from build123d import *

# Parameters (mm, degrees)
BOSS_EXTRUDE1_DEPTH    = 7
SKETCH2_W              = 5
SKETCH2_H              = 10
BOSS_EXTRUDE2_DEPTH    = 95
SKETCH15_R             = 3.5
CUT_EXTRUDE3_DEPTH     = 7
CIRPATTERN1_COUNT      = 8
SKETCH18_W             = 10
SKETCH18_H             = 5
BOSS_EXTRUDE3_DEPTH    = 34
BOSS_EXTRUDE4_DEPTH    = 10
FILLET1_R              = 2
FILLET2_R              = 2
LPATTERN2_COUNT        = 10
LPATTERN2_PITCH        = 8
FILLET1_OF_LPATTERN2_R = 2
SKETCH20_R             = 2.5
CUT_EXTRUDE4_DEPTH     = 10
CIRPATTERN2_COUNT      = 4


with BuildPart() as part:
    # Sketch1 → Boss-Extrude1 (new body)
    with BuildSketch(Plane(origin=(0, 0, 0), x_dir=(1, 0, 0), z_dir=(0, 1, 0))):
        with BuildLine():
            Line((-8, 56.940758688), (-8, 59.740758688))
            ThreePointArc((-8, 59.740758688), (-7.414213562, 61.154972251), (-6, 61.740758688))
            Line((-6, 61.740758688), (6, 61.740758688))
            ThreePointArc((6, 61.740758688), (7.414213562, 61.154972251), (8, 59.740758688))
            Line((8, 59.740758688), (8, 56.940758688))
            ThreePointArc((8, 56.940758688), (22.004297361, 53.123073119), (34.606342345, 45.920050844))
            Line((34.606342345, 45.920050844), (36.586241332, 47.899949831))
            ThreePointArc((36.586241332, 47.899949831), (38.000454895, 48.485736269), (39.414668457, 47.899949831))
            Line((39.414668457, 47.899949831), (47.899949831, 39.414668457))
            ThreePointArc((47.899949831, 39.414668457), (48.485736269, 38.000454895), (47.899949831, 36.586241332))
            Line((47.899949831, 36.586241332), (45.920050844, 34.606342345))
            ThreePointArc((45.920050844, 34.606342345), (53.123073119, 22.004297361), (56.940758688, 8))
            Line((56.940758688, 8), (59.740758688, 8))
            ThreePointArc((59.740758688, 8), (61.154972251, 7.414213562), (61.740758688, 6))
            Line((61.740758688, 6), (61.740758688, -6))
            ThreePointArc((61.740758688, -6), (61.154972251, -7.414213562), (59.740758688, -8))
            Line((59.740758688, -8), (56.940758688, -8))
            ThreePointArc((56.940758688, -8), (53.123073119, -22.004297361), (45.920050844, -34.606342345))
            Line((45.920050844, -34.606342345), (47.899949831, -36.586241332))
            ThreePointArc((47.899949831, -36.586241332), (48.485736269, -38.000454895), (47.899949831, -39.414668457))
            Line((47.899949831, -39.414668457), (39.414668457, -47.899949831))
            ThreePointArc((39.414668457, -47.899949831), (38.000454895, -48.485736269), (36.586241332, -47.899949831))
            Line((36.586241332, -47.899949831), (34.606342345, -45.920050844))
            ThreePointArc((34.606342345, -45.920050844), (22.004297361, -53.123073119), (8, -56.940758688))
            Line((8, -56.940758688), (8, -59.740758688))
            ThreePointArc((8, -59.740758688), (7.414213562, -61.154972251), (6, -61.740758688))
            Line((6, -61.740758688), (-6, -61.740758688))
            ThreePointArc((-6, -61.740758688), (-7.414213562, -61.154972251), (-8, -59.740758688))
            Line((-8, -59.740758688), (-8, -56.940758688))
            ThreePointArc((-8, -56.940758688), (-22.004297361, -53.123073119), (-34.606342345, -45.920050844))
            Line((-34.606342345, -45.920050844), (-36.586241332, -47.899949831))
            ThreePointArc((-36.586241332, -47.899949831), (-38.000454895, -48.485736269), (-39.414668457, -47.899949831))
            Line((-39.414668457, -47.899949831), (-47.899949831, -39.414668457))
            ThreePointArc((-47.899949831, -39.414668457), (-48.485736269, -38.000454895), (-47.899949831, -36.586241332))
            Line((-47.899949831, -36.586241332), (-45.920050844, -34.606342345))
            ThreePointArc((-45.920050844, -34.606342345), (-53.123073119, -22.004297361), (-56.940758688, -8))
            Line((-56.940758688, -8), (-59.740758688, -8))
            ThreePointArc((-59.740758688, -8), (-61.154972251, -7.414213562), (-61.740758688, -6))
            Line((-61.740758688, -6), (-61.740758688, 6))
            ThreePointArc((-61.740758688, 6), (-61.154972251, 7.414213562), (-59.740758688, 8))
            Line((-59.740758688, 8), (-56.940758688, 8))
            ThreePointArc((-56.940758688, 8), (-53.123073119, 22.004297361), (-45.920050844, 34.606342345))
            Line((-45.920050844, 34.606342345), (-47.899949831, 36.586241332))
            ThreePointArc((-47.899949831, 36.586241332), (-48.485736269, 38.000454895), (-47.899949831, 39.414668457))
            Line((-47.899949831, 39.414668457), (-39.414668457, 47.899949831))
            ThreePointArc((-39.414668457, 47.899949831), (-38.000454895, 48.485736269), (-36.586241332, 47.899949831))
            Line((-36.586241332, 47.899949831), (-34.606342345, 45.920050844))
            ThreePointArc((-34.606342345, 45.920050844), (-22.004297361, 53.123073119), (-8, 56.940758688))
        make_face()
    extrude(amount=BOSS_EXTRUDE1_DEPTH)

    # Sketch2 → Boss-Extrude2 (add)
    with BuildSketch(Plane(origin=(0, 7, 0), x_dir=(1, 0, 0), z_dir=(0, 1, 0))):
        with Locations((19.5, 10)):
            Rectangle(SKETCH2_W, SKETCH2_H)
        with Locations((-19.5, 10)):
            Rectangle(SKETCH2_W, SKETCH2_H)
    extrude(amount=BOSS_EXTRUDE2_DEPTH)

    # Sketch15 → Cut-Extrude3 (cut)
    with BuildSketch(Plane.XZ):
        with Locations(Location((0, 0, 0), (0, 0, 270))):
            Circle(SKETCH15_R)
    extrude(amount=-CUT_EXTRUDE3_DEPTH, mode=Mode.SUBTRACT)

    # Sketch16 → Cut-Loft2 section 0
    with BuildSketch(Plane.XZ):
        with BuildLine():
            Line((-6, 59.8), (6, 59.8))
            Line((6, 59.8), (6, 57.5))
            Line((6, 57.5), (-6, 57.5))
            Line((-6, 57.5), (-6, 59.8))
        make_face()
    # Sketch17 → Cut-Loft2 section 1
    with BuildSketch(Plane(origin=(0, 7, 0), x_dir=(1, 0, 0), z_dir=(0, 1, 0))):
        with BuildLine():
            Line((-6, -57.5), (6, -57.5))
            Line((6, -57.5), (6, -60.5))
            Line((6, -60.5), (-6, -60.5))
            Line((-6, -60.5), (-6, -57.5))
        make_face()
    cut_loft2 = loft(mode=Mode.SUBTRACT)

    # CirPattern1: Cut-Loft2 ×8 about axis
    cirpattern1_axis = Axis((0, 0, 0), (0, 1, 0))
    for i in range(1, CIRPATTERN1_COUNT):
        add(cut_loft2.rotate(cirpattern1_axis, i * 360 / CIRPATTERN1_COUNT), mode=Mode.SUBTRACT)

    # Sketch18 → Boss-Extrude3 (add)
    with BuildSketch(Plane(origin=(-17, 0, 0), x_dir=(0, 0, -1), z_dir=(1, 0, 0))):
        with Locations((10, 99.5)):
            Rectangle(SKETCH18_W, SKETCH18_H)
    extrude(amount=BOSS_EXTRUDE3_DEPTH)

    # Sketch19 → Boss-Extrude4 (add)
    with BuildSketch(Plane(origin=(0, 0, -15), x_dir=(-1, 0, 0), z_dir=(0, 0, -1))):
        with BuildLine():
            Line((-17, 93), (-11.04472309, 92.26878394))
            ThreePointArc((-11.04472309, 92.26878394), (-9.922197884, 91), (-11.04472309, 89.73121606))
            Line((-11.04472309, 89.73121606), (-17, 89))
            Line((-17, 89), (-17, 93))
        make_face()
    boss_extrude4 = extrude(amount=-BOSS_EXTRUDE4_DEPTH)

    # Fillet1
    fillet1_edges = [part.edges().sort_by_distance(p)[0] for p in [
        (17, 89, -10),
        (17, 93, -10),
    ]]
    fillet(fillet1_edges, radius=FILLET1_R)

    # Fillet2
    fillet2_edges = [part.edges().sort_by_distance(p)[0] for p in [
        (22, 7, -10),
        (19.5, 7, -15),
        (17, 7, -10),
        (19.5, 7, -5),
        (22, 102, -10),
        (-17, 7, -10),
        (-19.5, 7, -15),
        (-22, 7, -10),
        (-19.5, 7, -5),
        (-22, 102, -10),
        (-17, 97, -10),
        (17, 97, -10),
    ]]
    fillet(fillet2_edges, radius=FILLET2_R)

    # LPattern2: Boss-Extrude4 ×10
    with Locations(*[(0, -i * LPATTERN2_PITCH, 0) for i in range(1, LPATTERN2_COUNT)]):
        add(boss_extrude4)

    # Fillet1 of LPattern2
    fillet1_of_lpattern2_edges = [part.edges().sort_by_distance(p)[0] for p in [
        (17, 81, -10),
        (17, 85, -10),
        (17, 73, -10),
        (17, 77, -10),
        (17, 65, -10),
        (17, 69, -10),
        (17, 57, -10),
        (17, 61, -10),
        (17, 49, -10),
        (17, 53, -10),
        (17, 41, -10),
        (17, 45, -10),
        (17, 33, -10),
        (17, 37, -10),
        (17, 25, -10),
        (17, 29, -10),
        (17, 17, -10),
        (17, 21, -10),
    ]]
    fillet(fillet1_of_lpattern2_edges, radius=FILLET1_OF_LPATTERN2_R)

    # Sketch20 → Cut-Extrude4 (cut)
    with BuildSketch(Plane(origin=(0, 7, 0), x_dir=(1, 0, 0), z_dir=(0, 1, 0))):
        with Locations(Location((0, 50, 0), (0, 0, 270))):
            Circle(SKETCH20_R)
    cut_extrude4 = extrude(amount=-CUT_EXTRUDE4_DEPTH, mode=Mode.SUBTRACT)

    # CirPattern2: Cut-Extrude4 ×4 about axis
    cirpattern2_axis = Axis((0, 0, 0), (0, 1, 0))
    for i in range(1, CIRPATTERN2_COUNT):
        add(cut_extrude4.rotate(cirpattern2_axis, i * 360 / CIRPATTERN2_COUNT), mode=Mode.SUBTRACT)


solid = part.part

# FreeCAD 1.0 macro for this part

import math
import FreeCAD as App
import Part
import Sketcher

V = App.Vector
Q = App.Units.Quantity


def edges_at(feature, points):
    """Names of the edges that pass closest to the given points."""
    edges = feature.Shape.Edges
    near = lambda p: min(range(len(edges)), key=lambda i: edges[i].distToShape(Part.Vertex(*p))[0])
    return sorted({f"Edge{near(p) + 1}" for p in points})

doc = App.newDocument("Part")
params = doc.addObject("Spreadsheet::Sheet", "Params")
for row, (alias, value) in enumerate([
    ("sketch1_radius", "2 mm"),
    ("sketch1_radius2", "57.5 mm"),
    ("sketch1_width", "12 mm"),
    ("sketch1_length", "12 mm"),
    ("sketch1_width2", "2.8 mm"),
    ("pad1_length", "7 mm"),
    ("sketch2_width", "5 mm"),
    ("sketch2_height", "10 mm"),
    ("pad2_length", "95 mm"),
    ("sketch3_diameter", "7 mm"),
    ("pocket1_length", "7 mm"),
    ("sketch4_width", "12 mm"),
    ("sketch4_height", "2.3 mm"),
    ("sketch5_width", "12 mm"),
    ("sketch5_height", "3 mm"),
    ("sketch6_width", "5 mm"),
    ("sketch6_height", "10 mm"),
    ("pad3_length", "34 mm"),
    ("sketch7_height", "4 mm"),
    ("sketch7_length", "6 mm"),
    ("pad4_length", "10 mm"),
    ("fillet_radius", "2 mm"),
    ("fillet2_radius", "2 mm"),
    ("linearpattern_pitch", "8 mm"),
    ("fillet3_radius", "2 mm"),
    ("sketch8_diameter", "5 mm"),
    ("pocket2_length", "10 mm"),
], start=1):
    params.set(f"A{row}", alias)
    params.set(f"B{row}", "=" + value)
    params.setAlias(f"B{row}", alias)

body = doc.addObject("PartDesign::Body", "Body")

sketch1 = doc.addObject("Sketcher::SketchObject", "Sketch")
body.addObject(sketch1)
sketch1.AttachmentSupport = (doc.XZ_Plane, [""])
sketch1.MapMode = "FlatFace"
sketch1.addGeometry([
    Part.LineSegment(V(-8, -59.7, 0), V(-8, -56.9, 0)),
    Part.ArcOfCircle(Part.Circle(V(0, 0, 0), V(0, 0, 1), 57.5), math.radians(-127), math.radians(-98)),
    Part.LineSegment(V(-34.6, -45.9, 0), V(-36.6, -47.9, 0)),
    Part.ArcOfCircle(Part.Circle(V(-38, -46.5, 0), V(0, 0, 1), 2), math.radians(-135), math.radians(-45)),
    Part.LineSegment(V(-39.4, -47.9, 0), V(-47.9, -39.4, 0)),
    Part.ArcOfCircle(Part.Circle(V(-46.5, -38, 0), V(0, 0, 1), 2), math.radians(135), math.radians(225)),
    Part.LineSegment(V(-47.9, -36.6, 0), V(-45.9, -34.6, 0)),
    Part.ArcOfCircle(Part.Circle(V(0, 0, 0), V(0, 0, 1), 57.5), math.radians(-172), math.radians(-143)),
    Part.LineSegment(V(-56.9, -8, 0), V(-59.7, -8, 0)),
    Part.ArcOfCircle(Part.Circle(V(-59.7, -6, 0), V(0, 0, 1), 2), math.radians(180), math.radians(270)),
    Part.LineSegment(V(-61.7, -6, 0), V(-61.7, 6, 0)),
    Part.ArcOfCircle(Part.Circle(V(-59.7, 6, 0), V(0, 0, 1), 2), math.radians(90), math.radians(180)),
    Part.LineSegment(V(-59.7, 8, 0), V(-56.9, 8, 0)),
    Part.ArcOfCircle(Part.Circle(V(0, 0, 0), V(0, 0, 1), 57.5), math.radians(143), math.radians(172)),
    Part.LineSegment(V(-45.9, 34.6, 0), V(-47.9, 36.6, 0)),
    Part.ArcOfCircle(Part.Circle(V(-46.5, 38, 0), V(0, 0, 1), 2), math.radians(135), math.radians(225)),
    Part.LineSegment(V(-47.9, 39.4, 0), V(-39.4, 47.9, 0)),
    Part.ArcOfCircle(Part.Circle(V(-38, 46.5, 0), V(0, 0, 1), 2), math.radians(45), math.radians(135)),
    Part.LineSegment(V(-36.6, 47.9, 0), V(-34.6, 45.9, 0)),
    Part.ArcOfCircle(Part.Circle(V(0, 0, 0), V(0, 0, 1), 57.5), math.radians(98), math.radians(127)),
    Part.LineSegment(V(-8, 56.9, 0), V(-8, 59.7, 0)),
    Part.ArcOfCircle(Part.Circle(V(-6, 59.7, 0), V(0, 0, 1), 2), math.radians(90), math.radians(180)),
    Part.LineSegment(V(-6, 61.7, 0), V(6, 61.7, 0)),
    Part.ArcOfCircle(Part.Circle(V(6, 59.7, 0), V(0, 0, 1), 2), math.radians(0), math.radians(90)),
    Part.LineSegment(V(8, 59.7, 0), V(8, 56.9, 0)),
    Part.ArcOfCircle(Part.Circle(V(0, 0, 0), V(0, 0, 1), 57.5), math.radians(53), math.radians(82)),
    Part.LineSegment(V(34.6, 45.9, 0), V(36.6, 47.9, 0)),
    Part.ArcOfCircle(Part.Circle(V(38, 46.5, 0), V(0, 0, 1), 2), math.radians(45), math.radians(135)),
    Part.LineSegment(V(39.4, 47.9, 0), V(47.9, 39.4, 0)),
    Part.ArcOfCircle(Part.Circle(V(46.5, 38, 0), V(0, 0, 1), 2), math.radians(-45), math.radians(45)),
    Part.LineSegment(V(47.9, 36.6, 0), V(45.9, 34.6, 0)),
    Part.ArcOfCircle(Part.Circle(V(0, 0, 0), V(0, 0, 1), 57.5), math.radians(8), math.radians(37)),
    Part.LineSegment(V(56.9, 8, 0), V(59.7, 8, 0)),
    Part.ArcOfCircle(Part.Circle(V(59.7, 6, 0), V(0, 0, 1), 2), math.radians(0), math.radians(90)),
    Part.LineSegment(V(61.7, 6, 0), V(61.7, -6, 0)),
    Part.ArcOfCircle(Part.Circle(V(59.7, -6, 0), V(0, 0, 1), 2), math.radians(-90), math.radians(0)),
    Part.LineSegment(V(59.7, -8, 0), V(56.9, -8, 0)),
    Part.ArcOfCircle(Part.Circle(V(0, 0, 0), V(0, 0, 1), 57.5), math.radians(-37), math.radians(-8)),
    Part.LineSegment(V(45.9, -34.6, 0), V(47.9, -36.6, 0)),
    Part.ArcOfCircle(Part.Circle(V(46.5, -38, 0), V(0, 0, 1), 2), math.radians(-45), math.radians(45)),
    Part.LineSegment(V(47.9, -39.4, 0), V(39.4, -47.9, 0)),
    Part.ArcOfCircle(Part.Circle(V(38, -46.5, 0), V(0, 0, 1), 2), math.radians(-135), math.radians(-45)),
    Part.LineSegment(V(36.6, -47.9, 0), V(34.6, -45.9, 0)),
    Part.ArcOfCircle(Part.Circle(V(0, 0, 0), V(0, 0, 1), 57.5), math.radians(-82), math.radians(-53)),
    Part.LineSegment(V(8, -56.9, 0), V(8, -59.7, 0)),
    Part.ArcOfCircle(Part.Circle(V(6, -59.7, 0), V(0, 0, 1), 2), math.radians(-90), math.radians(0)),
    Part.LineSegment(V(6, -61.7, 0), V(-6, -61.7, 0)),
    Part.ArcOfCircle(Part.Circle(V(-6, -59.7, 0), V(0, 0, 1), 2), math.radians(180), math.radians(270)),
], False)
sketch1.addConstraint([
    Sketcher.Constraint("Coincident", 0, 2, 1, 2),
    Sketcher.Constraint("Coincident", 1, 1, 2, 1),
    Sketcher.Constraint("Tangent", 2, 2, 3, 2),
    Sketcher.Constraint("Tangent", 3, 1, 4, 1),
    Sketcher.Constraint("Tangent", 4, 2, 5, 2),
    Sketcher.Constraint("Tangent", 5, 1, 6, 1),
    Sketcher.Constraint("Coincident", 6, 2, 7, 2),
    Sketcher.Constraint("Coincident", 7, 1, 8, 1),
    Sketcher.Constraint("Tangent", 8, 2, 9, 2),
    Sketcher.Constraint("Tangent", 9, 1, 10, 1),
    Sketcher.Constraint("Tangent", 10, 2, 11, 2),
    Sketcher.Constraint("Tangent", 11, 1, 12, 1),
    Sketcher.Constraint("Coincident", 12, 2, 13, 2),
    Sketcher.Constraint("Coincident", 13, 1, 14, 1),
    Sketcher.Constraint("Tangent", 14, 2, 15, 2),
    Sketcher.Constraint("Tangent", 15, 1, 16, 1),
    Sketcher.Constraint("Tangent", 16, 2, 17, 2),
    Sketcher.Constraint("Tangent", 17, 1, 18, 1),
    Sketcher.Constraint("Coincident", 18, 2, 19, 2),
    Sketcher.Constraint("Coincident", 19, 1, 20, 1),
    Sketcher.Constraint("Tangent", 20, 2, 21, 2),
    Sketcher.Constraint("Tangent", 21, 1, 22, 1),
    Sketcher.Constraint("Tangent", 22, 2, 23, 2),
    Sketcher.Constraint("Tangent", 23, 1, 24, 1),
    Sketcher.Constraint("Coincident", 24, 2, 25, 2),
    Sketcher.Constraint("Coincident", 25, 1, 26, 1),
    Sketcher.Constraint("Tangent", 26, 2, 27, 2),
    Sketcher.Constraint("Tangent", 27, 1, 28, 1),
    Sketcher.Constraint("Tangent", 28, 2, 29, 2),
    Sketcher.Constraint("Tangent", 29, 1, 30, 1),
    Sketcher.Constraint("Coincident", 30, 2, 31, 2),
    Sketcher.Constraint("Coincident", 31, 1, 32, 1),
    Sketcher.Constraint("Tangent", 32, 2, 33, 2),
    Sketcher.Constraint("Tangent", 33, 1, 34, 1),
    Sketcher.Constraint("Tangent", 34, 2, 35, 2),
    Sketcher.Constraint("Tangent", 35, 1, 36, 1),
    Sketcher.Constraint("Coincident", 36, 2, 37, 2),
    Sketcher.Constraint("Coincident", 37, 1, 38, 1),
    Sketcher.Constraint("Tangent", 38, 2, 39, 2),
    Sketcher.Constraint("Tangent", 39, 1, 40, 1),
    Sketcher.Constraint("Tangent", 40, 2, 41, 2),
    Sketcher.Constraint("Tangent", 41, 1, 42, 1),
    Sketcher.Constraint("Coincident", 42, 2, 43, 2),
    Sketcher.Constraint("Coincident", 43, 1, 44, 1),
    Sketcher.Constraint("Tangent", 44, 2, 45, 2),
    Sketcher.Constraint("Tangent", 45, 1, 46, 1),
    Sketcher.Constraint("Tangent", 46, 2, 47, 2),
    Sketcher.Constraint("Tangent", 47, 1, 0, 1),
    Sketcher.Constraint("Vertical", 0),
    Sketcher.Constraint("Horizontal", 8),
    Sketcher.Constraint("Vertical", 10),
    Sketcher.Constraint("Horizontal", 12),
    Sketcher.Constraint("Vertical", 20),
    Sketcher.Constraint("Horizontal", 22),
    Sketcher.Constraint("Vertical", 24),
    Sketcher.Constraint("Horizontal", 32),
    Sketcher.Constraint("Vertical", 34),
    Sketcher.Constraint("Horizontal", 36),
    Sketcher.Constraint("Vertical", 44),
    Sketcher.Constraint("Horizontal", 46),
    Sketcher.Constraint("Coincident", 1, 3, -1, 1),
    Sketcher.Constraint("Coincident", 7, 3, -1, 1),
    Sketcher.Constraint("Coincident", 13, 3, -1, 1),
    Sketcher.Constraint("Coincident", 19, 3, -1, 1),
    Sketcher.Constraint("Coincident", 25, 3, -1, 1),
    Sketcher.Constraint("Coincident", 31, 3, -1, 1),
    Sketcher.Constraint("Coincident", 37, 3, -1, 1),
    Sketcher.Constraint("Coincident", 43, 3, -1, 1),
    Sketcher.Constraint("Equal", 3, 5),
    Sketcher.Constraint("Equal", 1, 7),
    Sketcher.Constraint("Equal", 5, 9),
    Sketcher.Constraint("Equal", 9, 11),
    Sketcher.Constraint("Equal", 7, 13),
    Sketcher.Constraint("Equal", 11, 15),
    Sketcher.Constraint("Equal", 15, 17),
    Sketcher.Constraint("Equal", 13, 19),
    Sketcher.Constraint("Equal", 17, 21),
    Sketcher.Constraint("Equal", 21, 23),
    Sketcher.Constraint("Equal", 19, 25),
    Sketcher.Constraint("Equal", 23, 27),
    Sketcher.Constraint("Equal", 27, 29),
    Sketcher.Constraint("Equal", 25, 31),
    Sketcher.Constraint("Equal", 29, 33),
    Sketcher.Constraint("Equal", 33, 35),
    Sketcher.Constraint("Equal", 31, 37),
    Sketcher.Constraint("Equal", 35, 39),
    Sketcher.Constraint("Equal", 39, 41),
    Sketcher.Constraint("Equal", 37, 43),
    Sketcher.Constraint("Equal", 41, 45),
    Sketcher.Constraint("Equal", 45, 47),
    Sketcher.Constraint("Symmetric", 3, 3, 27, 3, -1, 1),
    Sketcher.Constraint("Symmetric", 5, 3, 29, 3, -1, 1),
    Sketcher.Constraint("Symmetric", 9, 3, 33, 3, -1, 1),
    Sketcher.Constraint("Symmetric", 15, 3, 39, 3, -1, 1),
    Sketcher.Constraint("Symmetric", 17, 3, 41, 3, -1, 1),
    Sketcher.Constraint("Symmetric", 21, 3, 45, 3, -1, 1),
    Sketcher.Constraint("Symmetric", 17, 3, 27, 3, -2),
    Sketcher.Constraint("Symmetric", 15, 3, 29, 3, -2),
    Sketcher.Constraint("Perpendicular", 2, 4),
    Sketcher.Constraint("Perpendicular", 4, 6),
    Sketcher.Constraint("Perpendicular", 6, 14),
    Sketcher.Constraint("Perpendicular", 14, 16),
    Sketcher.Constraint("Perpendicular", 16, 18),
    Sketcher.Constraint("Perpendicular", 18, 26),
    Sketcher.Constraint("Perpendicular", 28, 30),
    Sketcher.Constraint("Perpendicular", 30, 38),
    Sketcher.Constraint("Perpendicular", 40, 42),
    Sketcher.Constraint("Horizontal", 11, 3, 33, 3),
    Sketcher.Constraint("Horizontal", 9, 3, 35, 3),
    Sketcher.Constraint("Horizontal", 19, 1, 24, 2),
    Sketcher.Constraint("Horizontal", 0, 2, 43, 1),
    Sketcher.Constraint("Equal", 36, 0),
    Sketcher.Constraint("Equal", 46, 10),
    Sketcher.Constraint("Equal", 2, 6),
    Sketcher.Constraint("Radius", 3, Q("2 mm")),
    Sketcher.Constraint("Radius", 1, Q("57.5 mm")),
    Sketcher.Constraint("DistanceX", 22, 1, 22, 2, Q("12 mm")),
    Sketcher.Constraint("Distance", 4, Q("12 mm")),
    Sketcher.Constraint("DistanceX", 8, 2, 8, 1, Q("2.8 mm")),
    Sketcher.Constraint("Distance", 2, Q("2.8 mm")),
])
sketch1.setExpression("Constraints[114]", "Params.sketch1_radius")
sketch1.setExpression("Constraints[115]", "Params.sketch1_radius2")
sketch1.setExpression("Constraints[116]", "Params.sketch1_width")
sketch1.setExpression("Constraints[117]", "Params.sketch1_length")
sketch1.setExpression("Constraints[118]", "Params.sketch1_width2")
pad1 = doc.addObject("PartDesign::Pad", "Pad")
body.addObject(pad1)
pad1.Profile = sketch1
pad1.setExpression("Length", "Params.pad1_length")
pad1.Reversed = True

sketch2 = doc.addObject("Sketcher::SketchObject", "Sketch001")
body.addObject(sketch2)
sketch2.AttachmentSupport = (doc.XZ_Plane, [""])
sketch2.MapMode = "FlatFace"
sketch2.AttachmentOffset = App.Placement(V(0, 0, -7), App.Rotation())
sketch2.addGeometry([
    Part.LineSegment(V(17, -15, 0), V(17, -5, 0)),
    Part.LineSegment(V(17, -5, 0), V(22, -5, 0)),
    Part.LineSegment(V(22, -5, 0), V(22, -15, 0)),
    Part.LineSegment(V(22, -15, 0), V(17, -15, 0)),
    Part.LineSegment(V(-22, -15, 0), V(-22, -5, 0)),
    Part.LineSegment(V(-22, -5, 0), V(-17, -5, 0)),
    Part.LineSegment(V(-17, -5, 0), V(-17, -15, 0)),
    Part.LineSegment(V(-17, -15, 0), V(-22, -15, 0)),
], False)
sketch2.addConstraint([
    Sketcher.Constraint("Coincident", 0, 2, 1, 1),
    Sketcher.Constraint("Coincident", 1, 2, 2, 1),
    Sketcher.Constraint("Coincident", 2, 2, 3, 1),
    Sketcher.Constraint("Coincident", 3, 2, 0, 1),
    Sketcher.Constraint("Coincident", 4, 2, 5, 1),
    Sketcher.Constraint("Coincident", 5, 2, 6, 1),
    Sketcher.Constraint("Coincident", 6, 2, 7, 1),
    Sketcher.Constraint("Coincident", 7, 2, 4, 1),
    Sketcher.Constraint("Vertical", 0),
    Sketcher.Constraint("Horizontal", 1),
    Sketcher.Constraint("Vertical", 2),
    Sketcher.Constraint("Horizontal", 3),
    Sketcher.Constraint("Vertical", 4),
    Sketcher.Constraint("Horizontal", 5),
    Sketcher.Constraint("Vertical", 6),
    Sketcher.Constraint("Horizontal", 7),
    Sketcher.Constraint("Symmetric", 1, 2, 4, 2, -2),
    Sketcher.Constraint("Symmetric", 3, 2, 6, 2, -2),
    Sketcher.Constraint("DistanceX", 1, 1, 1, 2, Q("5 mm")),
    Sketcher.Constraint("DistanceY", 0, 1, 0, 2, Q("10 mm")),
    Sketcher.Constraint("DistanceX", -1, 1, 0, 2, Q("17 mm")),
    Sketcher.Constraint("DistanceY", 0, 2, -1, 1, Q("5 mm")),
])
sketch2.setExpression("Constraints[18]", "Params.sketch2_width")
sketch2.setExpression("Constraints[19]", "Params.sketch2_height")
pad2 = doc.addObject("PartDesign::Pad", "Pad001")
body.addObject(pad2)
pad2.Profile = sketch2
pad2.setExpression("Length", "Params.pad2_length")
pad2.Reversed = True

sketch3 = doc.addObject("Sketcher::SketchObject", "Sketch002")
body.addObject(sketch3)
sketch3.AttachmentSupport = (doc.XZ_Plane, [""])
sketch3.MapMode = "FlatFace"
sketch3.addGeometry(Part.Circle(V(0, 0, 0), V(0, 0, 1), 3.5), False)
sketch3.addConstraint([
    Sketcher.Constraint("Coincident", 0, 3, -1, 1),
    Sketcher.Constraint("Diameter", 0, Q("7 mm")),
])
sketch3.setExpression("Constraints[1]", "Params.sketch3_diameter")
pocket1 = doc.addObject("PartDesign::Pocket", "Pocket")
body.addObject(pocket1)
pocket1.Profile = sketch3
pocket1.setExpression("Length", "Params.pocket1_length")

sketch4 = doc.addObject("Sketcher::SketchObject", "Sketch003")
body.addObject(sketch4)
sketch4.AttachmentSupport = (doc.XZ_Plane, [""])
sketch4.MapMode = "FlatFace"
sketch4.addGeometry([
    Part.LineSegment(V(6, 59.8, 0), V(-6, 59.8, 0)),
    Part.LineSegment(V(-6, 59.8, 0), V(-6, 57.5, 0)),
    Part.LineSegment(V(-6, 57.5, 0), V(6, 57.5, 0)),
    Part.LineSegment(V(6, 57.5, 0), V(6, 59.8, 0)),
], False)
sketch4.addConstraint([
    Sketcher.Constraint("Coincident", 0, 2, 1, 1),
    Sketcher.Constraint("Coincident", 1, 2, 2, 1),
    Sketcher.Constraint("Coincident", 2, 2, 3, 1),
    Sketcher.Constraint("Coincident", 3, 2, 0, 1),
    Sketcher.Constraint("Horizontal", 0),
    Sketcher.Constraint("Vertical", 1),
    Sketcher.Constraint("Horizontal", 2),
    Sketcher.Constraint("Vertical", 3),
    Sketcher.Constraint("DistanceX", 0, 2, 0, 1, Q("12 mm")),
    Sketcher.Constraint("DistanceY", 1, 2, 1, 1, Q("2.3 mm")),
    Sketcher.Constraint("DistanceX", 0, 2, -1, 1, Q("6 mm")),
    Sketcher.Constraint("DistanceY", -1, 1, 0, 2, Q("59.8 mm")),
])
sketch4.setExpression("Constraints[8]", "Params.sketch4_width")
sketch4.setExpression("Constraints[9]", "Params.sketch4_height")

sketch5 = doc.addObject("Sketcher::SketchObject", "Sketch004")
body.addObject(sketch5)
sketch5.AttachmentSupport = (doc.XZ_Plane, [""])
sketch5.MapMode = "FlatFace"
sketch5.AttachmentOffset = App.Placement(V(0, 0, -7), App.Rotation())
sketch5.addGeometry([
    Part.LineSegment(V(6, 57.5, 0), V(-6, 57.5, 0)),
    Part.LineSegment(V(-6, 57.5, 0), V(-6, 60.5, 0)),
    Part.LineSegment(V(-6, 60.5, 0), V(6, 60.5, 0)),
    Part.LineSegment(V(6, 60.5, 0), V(6, 57.5, 0)),
], False)
sketch5.addConstraint([
    Sketcher.Constraint("Coincident", 0, 2, 1, 1),
    Sketcher.Constraint("Coincident", 1, 2, 2, 1),
    Sketcher.Constraint("Coincident", 2, 2, 3, 1),
    Sketcher.Constraint("Coincident", 3, 2, 0, 1),
    Sketcher.Constraint("Horizontal", 0),
    Sketcher.Constraint("Vertical", 1),
    Sketcher.Constraint("Horizontal", 2),
    Sketcher.Constraint("Vertical", 3),
    Sketcher.Constraint("DistanceX", 0, 2, 0, 1, Q("12 mm")),
    Sketcher.Constraint("DistanceY", 1, 1, 1, 2, Q("3 mm")),
    Sketcher.Constraint("DistanceX", 0, 2, -1, 1, Q("6 mm")),
    Sketcher.Constraint("DistanceY", -1, 1, 0, 2, Q("57.5 mm")),
])
sketch5.setExpression("Constraints[8]", "Params.sketch5_width")
sketch5.setExpression("Constraints[9]", "Params.sketch5_height")

subtractiveloft = doc.addObject("PartDesign::SubtractiveLoft", "SubtractiveLoft")
body.addObject(subtractiveloft)
subtractiveloft.Profile = sketch4
subtractiveloft.Sections = [sketch5]
doc.recompute()

polarpattern = doc.addObject("PartDesign::PolarPattern", "PolarPattern")
body.addObject(polarpattern)
polarpattern.Originals = [subtractiveloft]
polarpattern.Axis = (doc.Y_Axis, [""])
polarpattern.Angle = 360
polarpattern.Occurrences = 8
body.Tip = polarpattern

sketch6 = doc.addObject("Sketcher::SketchObject", "Sketch005")
body.addObject(sketch6)
sketch6.AttachmentSupport = (doc.YZ_Plane, [""])
sketch6.MapMode = "FlatFace"
sketch6.AttachmentOffset = App.Placement(V(0, 0, -17), App.Rotation())
sketch6.addGeometry([
    Part.LineSegment(V(102, -5, 0), V(97, -5, 0)),
    Part.LineSegment(V(97, -5, 0), V(97, -15, 0)),
    Part.LineSegment(V(97, -15, 0), V(102, -15, 0)),
    Part.LineSegment(V(102, -15, 0), V(102, -5, 0)),
], False)
sketch6.addConstraint([
    Sketcher.Constraint("Coincident", 0, 2, 1, 1),
    Sketcher.Constraint("Coincident", 1, 2, 2, 1),
    Sketcher.Constraint("Coincident", 2, 2, 3, 1),
    Sketcher.Constraint("Coincident", 3, 2, 0, 1),
    Sketcher.Constraint("Horizontal", 0),
    Sketcher.Constraint("Vertical", 1),
    Sketcher.Constraint("Horizontal", 2),
    Sketcher.Constraint("Vertical", 3),
    Sketcher.Constraint("DistanceX", 0, 2, 0, 1, Q("5 mm")),
    Sketcher.Constraint("DistanceY", 1, 2, 1, 1, Q("10 mm")),
    Sketcher.Constraint("DistanceX", -1, 1, 0, 2, Q("97 mm")),
    Sketcher.Constraint("DistanceY", 0, 2, -1, 1, Q("5 mm")),
])
sketch6.setExpression("Constraints[8]", "Params.sketch6_width")
sketch6.setExpression("Constraints[9]", "Params.sketch6_height")
pad3 = doc.addObject("PartDesign::Pad", "Pad002")
body.addObject(pad3)
pad3.Profile = sketch6
pad3.setExpression("Length", "Params.pad3_length")

sketch7 = doc.addObject("Sketcher::SketchObject", "Sketch006")
body.addObject(sketch7)
sketch7.AttachmentSupport = (doc.XY_Plane, [""])
sketch7.MapMode = "FlatFace"
sketch7.AttachmentOffset = App.Placement(V(0, 0, -15), App.Rotation())
sketch7.addGeometry([
    Part.LineSegment(V(11, 92.3, 0), V(17, 93, 0)),
    Part.LineSegment(V(17, 93, 0), V(17, 89, 0)),
    Part.LineSegment(V(17, 89, 0), V(11, 89.7, 0)),
    Part.ArcOfCircle(Part.Circle(V(11.2, 91, 0), V(0, 0, 1), 1.3), math.radians(97), math.radians(263)),
], False)
sketch7.addConstraint([
    Sketcher.Constraint("Coincident", 0, 2, 1, 1),
    Sketcher.Constraint("Coincident", 1, 2, 2, 1),
    Sketcher.Constraint("Tangent", 2, 2, 3, 2),
    Sketcher.Constraint("Tangent", 3, 1, 0, 1),
    Sketcher.Constraint("Vertical", 1),
    Sketcher.Constraint("Vertical", 2, 2, 3, 1),
    Sketcher.Constraint("DistanceY", 1, 2, 1, 1, Q("4 mm")),
    Sketcher.Constraint("Angle", 0, Q("7 deg")),
    Sketcher.Constraint("Distance", 0, Q("6 mm")),
    Sketcher.Constraint("DistanceY", -1, 1, 3, 3, Q("91 mm")),
    Sketcher.Constraint("DistanceX", -1, 1, 0, 2, Q("17 mm")),
])
sketch7.setExpression("Constraints[6]", "Params.sketch7_height")
sketch7.setExpression("Constraints[8]", "Params.sketch7_length")
pad4 = doc.addObject("PartDesign::Pad", "Pad003")
body.addObject(pad4)
pad4.Profile = sketch7
pad4.setExpression("Length", "Params.pad4_length")
doc.recompute()

fillet = doc.addObject("PartDesign::Fillet", "Fillet")
body.addObject(fillet)
fillet.Base = (pad4, edges_at(pad4, [(17, 89, -10), (17, 93, -10)]))
fillet.setExpression("Radius", "Params.fillet_radius")
doc.recompute()

fillet2 = doc.addObject("PartDesign::Fillet", "Fillet001")
body.addObject(fillet2)
fillet2.Base = (fillet, edges_at(fillet, [
    (22, 7, -10),
    (19.5, 7, -15),
    (17, 7, -10),
    (19.5, 7, -5),
    (22, 102, -10),
    (-17, 7, -10),
    (-19.5, 7, -15),
    (-22, 7, -10),
    (-19.5, 7, -5),
    (-22, 102, -10),
    (-17, 97, -10),
    (17, 97, -10),
]))
fillet2.setExpression("Radius", "Params.fillet2_radius")
doc.recompute()

linearpattern = doc.addObject("PartDesign::LinearPattern", "LinearPattern")
body.addObject(linearpattern)
linearpattern.Originals = [pad4]
linearpattern.Direction = (doc.Y_Axis, [""])
linearpattern.Mode = "offset"
linearpattern.setExpression("Offset", "Params.linearpattern_pitch")
linearpattern.Occurrences = 10
linearpattern.Reversed = True
body.Tip = linearpattern
doc.recompute()

fillet3 = doc.addObject("PartDesign::Fillet", "Fillet002")
body.addObject(fillet3)
fillet3.Base = (linearpattern, edges_at(linearpattern, [
    (17, 81, -10),
    (17, 85, -10),
    (17, 73, -10),
    (17, 77, -10),
    (17, 65, -10),
    (17, 69, -10),
    (17, 57, -10),
    (17, 61, -10),
    (17, 49, -10),
    (17, 53, -10),
    (17, 41, -10),
    (17, 45, -10),
    (17, 33, -10),
    (17, 37, -10),
    (17, 25, -10),
    (17, 29, -10),
    (17, 17, -10),
    (17, 21, -10),
]))
fillet3.setExpression("Radius", "Params.fillet3_radius")

sketch8 = doc.addObject("Sketcher::SketchObject", "Sketch007")
body.addObject(sketch8)
sketch8.AttachmentSupport = (doc.XZ_Plane, [""])
sketch8.MapMode = "FlatFace"
sketch8.AttachmentOffset = App.Placement(V(0, 0, -7), App.Rotation())
sketch8.addGeometry(Part.Circle(V(0, -50, 0), V(0, 0, 1), 2.5), False)
sketch8.addConstraint([
    Sketcher.Constraint("PointOnObject", 0, 3, -2),
    Sketcher.Constraint("Diameter", 0, Q("5 mm")),
    Sketcher.Constraint("DistanceY", 0, 3, -1, 1, Q("50 mm")),
])
sketch8.setExpression("Constraints[1]", "Params.sketch8_diameter")
pocket2 = doc.addObject("PartDesign::Pocket", "Pocket001")
body.addObject(pocket2)
pocket2.Profile = sketch8
pocket2.setExpression("Length", "Params.pocket2_length")
pocket2.Reversed = True
doc.recompute()

polarpattern2 = doc.addObject("PartDesign::PolarPattern", "PolarPattern001")
body.addObject(polarpattern2)
polarpattern2.Originals = [pocket2]
polarpattern2.Axis = (doc.Y_Axis, [""])
polarpattern2.Angle = 360
polarpattern2.Occurrences = 4
body.Tip = polarpattern2

doc.recompute()
